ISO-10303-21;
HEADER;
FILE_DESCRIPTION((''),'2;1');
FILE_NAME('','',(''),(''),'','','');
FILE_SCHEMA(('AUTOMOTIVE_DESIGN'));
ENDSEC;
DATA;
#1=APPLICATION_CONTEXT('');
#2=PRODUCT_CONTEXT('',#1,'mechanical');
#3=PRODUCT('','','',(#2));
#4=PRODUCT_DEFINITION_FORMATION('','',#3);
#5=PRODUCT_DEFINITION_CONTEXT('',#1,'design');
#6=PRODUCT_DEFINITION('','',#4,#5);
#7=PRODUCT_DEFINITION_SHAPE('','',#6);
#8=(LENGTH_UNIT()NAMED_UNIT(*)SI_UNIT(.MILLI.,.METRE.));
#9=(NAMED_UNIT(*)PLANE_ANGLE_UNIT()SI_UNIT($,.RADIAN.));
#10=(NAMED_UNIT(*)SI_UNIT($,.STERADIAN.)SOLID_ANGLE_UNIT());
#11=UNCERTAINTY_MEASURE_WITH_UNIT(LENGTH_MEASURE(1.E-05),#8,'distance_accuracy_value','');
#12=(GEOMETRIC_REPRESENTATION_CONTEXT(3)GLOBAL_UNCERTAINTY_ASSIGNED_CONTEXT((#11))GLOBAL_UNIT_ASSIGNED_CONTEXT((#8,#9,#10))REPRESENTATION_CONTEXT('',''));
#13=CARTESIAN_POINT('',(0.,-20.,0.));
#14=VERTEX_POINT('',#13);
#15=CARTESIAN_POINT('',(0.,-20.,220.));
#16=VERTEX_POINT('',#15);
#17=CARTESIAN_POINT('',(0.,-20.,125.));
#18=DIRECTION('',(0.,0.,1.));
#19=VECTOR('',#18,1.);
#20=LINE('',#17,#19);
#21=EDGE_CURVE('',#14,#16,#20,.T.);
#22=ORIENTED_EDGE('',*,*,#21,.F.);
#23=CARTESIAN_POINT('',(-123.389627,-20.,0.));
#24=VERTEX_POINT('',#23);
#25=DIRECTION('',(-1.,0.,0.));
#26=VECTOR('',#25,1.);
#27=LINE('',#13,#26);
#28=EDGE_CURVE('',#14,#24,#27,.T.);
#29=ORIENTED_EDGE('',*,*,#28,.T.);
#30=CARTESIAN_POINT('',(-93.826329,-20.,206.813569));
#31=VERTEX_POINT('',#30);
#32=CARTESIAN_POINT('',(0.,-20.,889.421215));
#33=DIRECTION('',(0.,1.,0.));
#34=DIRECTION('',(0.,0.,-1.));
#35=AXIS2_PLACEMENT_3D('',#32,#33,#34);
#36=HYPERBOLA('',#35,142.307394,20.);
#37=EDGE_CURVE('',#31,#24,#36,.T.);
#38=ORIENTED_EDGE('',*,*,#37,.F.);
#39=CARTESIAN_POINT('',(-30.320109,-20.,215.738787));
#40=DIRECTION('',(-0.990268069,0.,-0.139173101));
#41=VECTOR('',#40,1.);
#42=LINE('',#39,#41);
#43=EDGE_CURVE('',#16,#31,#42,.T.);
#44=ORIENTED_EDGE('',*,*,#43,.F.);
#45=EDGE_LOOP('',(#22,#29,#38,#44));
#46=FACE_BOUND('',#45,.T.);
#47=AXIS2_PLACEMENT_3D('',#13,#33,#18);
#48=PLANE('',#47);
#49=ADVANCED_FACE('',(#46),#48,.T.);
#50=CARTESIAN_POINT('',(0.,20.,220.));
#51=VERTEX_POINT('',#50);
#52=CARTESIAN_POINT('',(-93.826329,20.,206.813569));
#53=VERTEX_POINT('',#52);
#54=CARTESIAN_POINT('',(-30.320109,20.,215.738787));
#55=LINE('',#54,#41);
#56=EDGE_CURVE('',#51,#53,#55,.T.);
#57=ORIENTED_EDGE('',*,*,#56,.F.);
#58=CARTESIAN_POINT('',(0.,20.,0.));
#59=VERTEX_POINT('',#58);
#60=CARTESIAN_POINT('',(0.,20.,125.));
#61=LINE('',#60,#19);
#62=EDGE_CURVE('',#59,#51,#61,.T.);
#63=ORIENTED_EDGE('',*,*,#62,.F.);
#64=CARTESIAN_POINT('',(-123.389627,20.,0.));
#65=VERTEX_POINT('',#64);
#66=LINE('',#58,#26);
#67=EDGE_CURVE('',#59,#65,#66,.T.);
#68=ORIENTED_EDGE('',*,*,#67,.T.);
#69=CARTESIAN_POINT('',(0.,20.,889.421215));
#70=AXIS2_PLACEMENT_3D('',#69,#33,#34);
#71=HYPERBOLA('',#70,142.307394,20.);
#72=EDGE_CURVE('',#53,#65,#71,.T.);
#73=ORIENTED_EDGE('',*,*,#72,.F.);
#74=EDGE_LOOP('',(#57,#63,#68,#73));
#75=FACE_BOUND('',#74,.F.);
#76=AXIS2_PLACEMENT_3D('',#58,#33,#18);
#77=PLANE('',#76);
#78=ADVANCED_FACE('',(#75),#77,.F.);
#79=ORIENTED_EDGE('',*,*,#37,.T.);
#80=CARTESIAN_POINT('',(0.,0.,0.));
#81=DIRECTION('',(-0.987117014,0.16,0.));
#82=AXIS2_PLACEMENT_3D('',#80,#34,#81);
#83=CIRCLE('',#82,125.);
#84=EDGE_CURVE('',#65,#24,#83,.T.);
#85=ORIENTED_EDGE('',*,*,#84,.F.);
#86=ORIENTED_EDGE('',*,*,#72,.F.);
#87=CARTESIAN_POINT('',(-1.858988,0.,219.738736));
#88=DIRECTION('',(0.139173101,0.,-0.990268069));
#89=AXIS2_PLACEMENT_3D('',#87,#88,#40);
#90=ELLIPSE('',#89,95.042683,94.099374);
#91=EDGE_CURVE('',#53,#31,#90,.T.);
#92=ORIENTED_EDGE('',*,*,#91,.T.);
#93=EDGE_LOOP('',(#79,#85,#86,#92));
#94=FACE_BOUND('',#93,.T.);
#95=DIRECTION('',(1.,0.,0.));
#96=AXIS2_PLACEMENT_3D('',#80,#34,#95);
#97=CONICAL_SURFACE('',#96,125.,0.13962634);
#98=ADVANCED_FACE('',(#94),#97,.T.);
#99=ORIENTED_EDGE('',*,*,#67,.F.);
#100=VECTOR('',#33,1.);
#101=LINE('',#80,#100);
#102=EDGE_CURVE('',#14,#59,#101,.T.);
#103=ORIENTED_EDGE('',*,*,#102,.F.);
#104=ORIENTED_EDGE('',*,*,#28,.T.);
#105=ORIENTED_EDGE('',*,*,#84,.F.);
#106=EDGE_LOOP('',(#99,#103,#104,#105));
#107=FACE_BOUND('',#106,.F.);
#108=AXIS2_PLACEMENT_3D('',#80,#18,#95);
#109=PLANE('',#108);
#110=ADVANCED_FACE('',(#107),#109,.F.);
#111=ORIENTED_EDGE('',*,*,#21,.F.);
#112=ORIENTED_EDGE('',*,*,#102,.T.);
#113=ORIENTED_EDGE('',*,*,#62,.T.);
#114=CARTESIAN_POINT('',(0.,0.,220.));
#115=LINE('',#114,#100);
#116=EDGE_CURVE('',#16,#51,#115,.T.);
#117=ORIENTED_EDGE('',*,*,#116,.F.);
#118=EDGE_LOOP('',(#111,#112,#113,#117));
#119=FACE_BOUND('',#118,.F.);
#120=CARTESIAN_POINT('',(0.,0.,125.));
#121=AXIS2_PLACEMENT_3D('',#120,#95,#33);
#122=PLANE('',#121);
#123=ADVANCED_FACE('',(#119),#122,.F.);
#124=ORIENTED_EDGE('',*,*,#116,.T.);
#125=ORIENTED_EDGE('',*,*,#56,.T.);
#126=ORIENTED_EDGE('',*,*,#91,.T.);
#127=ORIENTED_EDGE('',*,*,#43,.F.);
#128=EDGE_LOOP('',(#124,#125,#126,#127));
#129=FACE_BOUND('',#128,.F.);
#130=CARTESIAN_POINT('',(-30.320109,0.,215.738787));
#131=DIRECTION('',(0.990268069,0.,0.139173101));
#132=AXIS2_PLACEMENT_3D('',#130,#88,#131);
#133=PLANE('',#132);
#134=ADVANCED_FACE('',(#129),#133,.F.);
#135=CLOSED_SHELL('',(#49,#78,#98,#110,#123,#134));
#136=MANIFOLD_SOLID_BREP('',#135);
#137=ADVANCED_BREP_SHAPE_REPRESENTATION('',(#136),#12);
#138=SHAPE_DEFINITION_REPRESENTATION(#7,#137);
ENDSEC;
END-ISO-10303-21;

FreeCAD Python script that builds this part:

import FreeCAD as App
import Part
import Sketcher

V = App.Vector
Q = App.Units.Quantity


def add_polygon(sketch, points):
    """Adds a closed chain of lines whose ends are joined by coincident constraints."""
    first, n = sketch.GeometryCount, len(points)
    for a, b in zip(points, points[1:] + points[:1]):
        sketch.addGeometry(Part.LineSegment(App.Vector(*a, 0), App.Vector(*b, 0)), False)
    for i in range(n):
        sketch.addConstraint(Sketcher.Constraint("Coincident", first + i, 2, first + (i + 1) % n, 1))

doc = App.newDocument("Part")
body = doc.addObject("PartDesign::Body", "Body")

sketch1 = doc.addObject("Sketcher::SketchObject", "Sketch")
body.addObject(sketch1)
sketch1.AttachmentSupport = (doc.XY_Plane, [""])
sketch1.MapMode = "FlatFace"
sketch1.addGeometry(Part.Circle(V(0, 0, 0), V(0, 0, 1), 125), False)
sketch1.addConstraint([
    Sketcher.Constraint("Coincident", 0, 3, -1, 1),
    Sketcher.Constraint("Diameter", 0, Q("250 mm")),
])
pad1 = doc.addObject("PartDesign::Pad", "Pad")
body.addObject(pad1)
pad1.Profile = sketch1
pad1.Length = 250
pad1.TaperAngle = -8

sketch2 = doc.addObject("Sketcher::SketchObject", "Sketch001")
body.addObject(sketch2)
sketch2.AttachmentSupport = (doc.YZ_Plane, [""])
sketch2.MapMode = "FlatFace"
add_polygon(sketch2, [(-20, 250), (-20, 0), (20, 0), (20, 250)])
sketch2.addConstraint([
    Sketcher.Constraint("Vertical", 0),
    Sketcher.Constraint("Horizontal", 1),
    Sketcher.Constraint("Vertical", 2),
    Sketcher.Constraint("Horizontal", 3),
    Sketcher.Constraint("Symmetric", 0, 2, 1, 2, -1, 1),
    Sketcher.Constraint("DistanceX", 1, 1, 1, 2, Q("40 mm")),
    Sketcher.Constraint("DistanceY", 0, 2, 0, 1, Q("250 mm")),
])
pocket1 = doc.addObject("PartDesign::Pocket", "Pocket")
body.addObject(pocket1)
pocket1.Profile = sketch2
pocket1.Length = 150

sketch3 = doc.addObject("Sketcher::SketchObject", "Sketch002")
body.addObject(sketch3)
sketch3.Placement = App.Placement(V(-30.320109, 0, 215.738787), App.Rotation(V(0.990268069, 0, 0.139173101), V(0, -1.000000001, 0), V(0.139173101, 0, -0.990268069), "ZXY"))
sketch3.addGeometry(Part.Circle(V(0, 0, 0), V(0, 0, 1), 150), False)
sketch3.addConstraint([
    Sketcher.Constraint("Coincident", 0, 3, -1, 1),
    Sketcher.Constraint("Diameter", 0, Q("300 mm")),
])
pocket2 = doc.addObject("PartDesign::Pocket", "Pocket001")
body.addObject(pocket2)
pocket2.Profile = sketch3
pocket2.Type = "ThroughAll"

doc.recompute()
